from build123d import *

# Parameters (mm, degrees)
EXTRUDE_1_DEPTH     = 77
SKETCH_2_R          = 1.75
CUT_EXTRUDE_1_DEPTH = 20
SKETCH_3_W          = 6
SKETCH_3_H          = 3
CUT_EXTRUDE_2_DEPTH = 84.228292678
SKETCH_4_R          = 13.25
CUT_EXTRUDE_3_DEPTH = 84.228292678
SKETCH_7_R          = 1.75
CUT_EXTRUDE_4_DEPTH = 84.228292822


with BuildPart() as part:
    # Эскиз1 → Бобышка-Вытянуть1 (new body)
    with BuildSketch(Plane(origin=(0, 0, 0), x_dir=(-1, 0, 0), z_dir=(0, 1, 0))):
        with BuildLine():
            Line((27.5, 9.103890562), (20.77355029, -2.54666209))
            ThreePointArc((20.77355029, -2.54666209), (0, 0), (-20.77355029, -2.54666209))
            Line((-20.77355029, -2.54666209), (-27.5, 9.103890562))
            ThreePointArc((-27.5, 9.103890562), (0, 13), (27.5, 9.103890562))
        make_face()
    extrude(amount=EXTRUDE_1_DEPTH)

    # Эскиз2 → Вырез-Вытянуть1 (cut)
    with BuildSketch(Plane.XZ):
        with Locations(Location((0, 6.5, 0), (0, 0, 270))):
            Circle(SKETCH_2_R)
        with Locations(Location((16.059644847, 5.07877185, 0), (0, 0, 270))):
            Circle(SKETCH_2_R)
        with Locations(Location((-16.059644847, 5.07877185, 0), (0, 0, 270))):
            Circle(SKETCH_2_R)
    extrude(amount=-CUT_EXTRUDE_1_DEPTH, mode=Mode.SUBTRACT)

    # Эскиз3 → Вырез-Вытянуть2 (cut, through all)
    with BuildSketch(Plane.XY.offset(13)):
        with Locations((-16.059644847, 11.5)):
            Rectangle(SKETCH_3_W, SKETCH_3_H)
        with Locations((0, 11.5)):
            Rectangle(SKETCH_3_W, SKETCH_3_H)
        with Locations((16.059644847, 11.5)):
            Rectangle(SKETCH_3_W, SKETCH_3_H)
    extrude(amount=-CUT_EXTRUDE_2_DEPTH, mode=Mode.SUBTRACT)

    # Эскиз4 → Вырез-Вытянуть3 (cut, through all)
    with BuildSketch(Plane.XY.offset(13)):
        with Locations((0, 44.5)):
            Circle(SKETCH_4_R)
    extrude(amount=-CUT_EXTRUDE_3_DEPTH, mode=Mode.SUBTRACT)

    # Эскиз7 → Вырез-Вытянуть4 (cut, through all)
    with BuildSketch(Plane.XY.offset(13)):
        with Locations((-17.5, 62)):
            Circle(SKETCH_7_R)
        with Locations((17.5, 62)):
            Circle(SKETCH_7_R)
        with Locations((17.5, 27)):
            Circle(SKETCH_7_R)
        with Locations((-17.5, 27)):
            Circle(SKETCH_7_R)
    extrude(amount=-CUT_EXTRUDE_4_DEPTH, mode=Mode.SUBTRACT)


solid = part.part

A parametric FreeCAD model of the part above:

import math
import FreeCAD as App
import Part
import Sketcher

V = App.Vector
Q = App.Units.Quantity

doc = App.newDocument("Part")
body = doc.addObject("PartDesign::Body", "Body")

# Sketch on XZ plane
sketch1 = doc.addObject("Sketcher::SketchObject", "Sketch")
body.addObject(sketch1)
sketch1.AttachmentSupport = (doc.XZ_Plane, [""])
sketch1.MapMode = "FlatFace"
sketch1.addGeometry([
    Part.LineSegment(V(-21, -3, 0), V(-28, 9, 0)),
    Part.ArcOfCircle(Part.Circle(V(0, -86, 0), V(0, 0, 1), 99), math.radians(74), math.radians(106)),
    Part.LineSegment(V(28, 9, 0), V(21, -3, 0)),
    Part.ArcOfCircle(Part.Circle(V(0, -86, 0), V(0, 0, 1), 86), math.radians(76), math.radians(104)),
], False)
sketch1.addConstraint([
    Sketcher.Constraint("Coincident", 0, 2, 1, 2),
    Sketcher.Constraint("Coincident", 1, 1, 2, 1),
    Sketcher.Constraint("Coincident", 2, 2, 3, 1),
    Sketcher.Constraint("Coincident", 3, 2, 0, 1),
    Sketcher.Constraint("Coincident", 3, 3, 1, 3),
    Sketcher.Constraint("Symmetric", 0, 2, 1, 1, -2),
    Sketcher.Constraint("Horizontal", 2, 2, 3, 2),
    Sketcher.Constraint("Radius", 1, 99.0),
    Sketcher.Constraint("Radius", 3, 86.0),
    Sketcher.Constraint("Angle", 0, Q("120 deg")),
    Sketcher.Constraint("DistanceY", 1, 3, -1, 1, 86.0),
    Sketcher.Constraint("DistanceX", 0, 2, 1, 1, 55.0),
])
pad1 = doc.addObject("PartDesign::Pad", "Pad")
body.addObject(pad1)
pad1.Profile = sketch1
pad1.Length = 77
pad1.Reversed = True

# Sketch on XZ plane
sketch2 = doc.addObject("Sketcher::SketchObject", "Sketch001")
body.addObject(sketch2)
sketch2.AttachmentSupport = (doc.XZ_Plane, [""])
sketch2.MapMode = "FlatFace"
sketch2.addGeometry([
    Part.Circle(V(0, 6.5, 0), V(0, 0, 1), 1.8),
    Part.Circle(V(16.1, 5.1, 0), V(0, 0, 1), 1.8),
    Part.Circle(V(-16.1, 5.1, 0), V(0, 0, 1), 1.8),
], False)
sketch2.addConstraint([
    Sketcher.Constraint("Equal", 0, 1),
    Sketcher.Constraint("Equal", 1, 2),
    Sketcher.Constraint("Symmetric", 1, 3, 2, 3, -2),
    Sketcher.Constraint("PointOnObject", 0, 3, -2),
    Sketcher.Constraint("Diameter", 0, 3.5),
    Sketcher.Constraint("DistanceY", -1, 1, 0, 3, 6.5),
    Sketcher.Constraint("DistanceY", -1, 1, 1, 3, 5.078772),
    Sketcher.Constraint("DistanceX", 2, 3, 1, 3, 32.11929),
])
pocket1 = doc.addObject("PartDesign::Pocket", "Pocket")
body.addObject(pocket1)
pocket1.Profile = sketch2
pocket1.Length = 20

# Sketch on XY plane
sketch3 = doc.addObject("Sketcher::SketchObject", "Sketch002")
body.addObject(sketch3)
sketch3.AttachmentSupport = (doc.XY_Plane, [""])
sketch3.MapMode = "FlatFace"
sketch3.AttachmentOffset = App.Placement(V(0, 0, 13), App.Rotation())
sketch3.addGeometry([
    Part.LineSegment(V(-19.1, 13, 0), V(-19.1, 10, 0)),  # 0
    Part.LineSegment(V(-19.1, 10, 0), V(-13.1, 10, 0)),  # 1
    Part.LineSegment(V(-13.1, 10, 0), V(-13.1, 13, 0)),  # 2
    Part.LineSegment(V(-13.1, 13, 0), V(-19.1, 13, 0)),  # 3
    Part.LineSegment(V(-3, 13, 0), V(-3, 10, 0)),  # 4
    Part.LineSegment(V(-3, 10, 0), V(3, 10, 0)),  # 5
    Part.LineSegment(V(3, 10, 0), V(3, 13, 0)),  # 6
    Part.LineSegment(V(3, 13, 0), V(-3, 13, 0)),  # 7
    Part.LineSegment(V(13.1, 13, 0), V(13.1, 10, 0)),  # 8
    Part.LineSegment(V(13.1, 10, 0), V(19.1, 10, 0)),  # 9
    Part.LineSegment(V(19.1, 10, 0), V(19.1, 13, 0)),  # 10
    Part.LineSegment(V(19.1, 13, 0), V(13.1, 13, 0)),  # 11
], False)
sketch3.addConstraint([
    Sketcher.Constraint("Coincident", 0, 2, 1, 1),
    Sketcher.Constraint("Coincident", 1, 2, 2, 1),
    Sketcher.Constraint("Coincident", 2, 2, 3, 1),
    Sketcher.Constraint("Coincident", 3, 2, 0, 1),
    Sketcher.Constraint("Coincident", 4, 2, 5, 1),
    Sketcher.Constraint("Coincident", 5, 2, 6, 1),
    Sketcher.Constraint("Coincident", 6, 2, 7, 1),
    Sketcher.Constraint("Coincident", 7, 2, 4, 1),
    Sketcher.Constraint("Coincident", 8, 2, 9, 1),
    Sketcher.Constraint("Coincident", 9, 2, 10, 1),
    Sketcher.Constraint("Coincident", 10, 2, 11, 1),
    Sketcher.Constraint("Coincident", 11, 2, 8, 1),
    Sketcher.Constraint("Vertical", 0),
    Sketcher.Constraint("Horizontal", 1),
    Sketcher.Constraint("Vertical", 2),
    Sketcher.Constraint("Horizontal", 3),
    Sketcher.Constraint("Vertical", 4),
    Sketcher.Constraint("Horizontal", 5),
    Sketcher.Constraint("Vertical", 6),
    Sketcher.Constraint("Horizontal", 7),
    Sketcher.Constraint("Vertical", 8),
    Sketcher.Constraint("Horizontal", 9),
    Sketcher.Constraint("Vertical", 10),
    Sketcher.Constraint("Horizontal", 11),
    Sketcher.Constraint("Symmetric", 1, 2, 8, 2, -2),
    Sketcher.Constraint("Symmetric", 3, 2, 10, 2, -2),
    Sketcher.Constraint("Horizontal", 1, 2, 4, 2),
    Sketcher.Constraint("Horizontal", 3, 2, 6, 2),
    Sketcher.Constraint("Equal", 3, 5),
    Sketcher.Constraint("DistanceX", 1, 1, 1, 2, 6.0),
    Sketcher.Constraint("DistanceY", 0, 2, 0, 1, 3.0),
    Sketcher.Constraint("DistanceY", -1, 1, 0, 2, 10.0),
    Sketcher.Constraint("DistanceX", 4, 2, -1, 1, 3.0),
    Sketcher.Constraint("DistanceX", 1, 2, 8, 2, 26.11929),
])
pocket2 = doc.addObject("PartDesign::Pocket", "Pocket001")
body.addObject(pocket2)
pocket2.Profile = sketch3
pocket2.Type = "ThroughAll"

# Sketch on XY plane
sketch4 = doc.addObject("Sketcher::SketchObject", "Sketch003")
body.addObject(sketch4)
sketch4.AttachmentSupport = (doc.XY_Plane, [""])
sketch4.MapMode = "FlatFace"
sketch4.AttachmentOffset = App.Placement(V(0, 0, 13), App.Rotation())
sketch4.addGeometry(Part.Circle(V(0, 44, 0), V(0, 0, 1), 13), False)
sketch4.addConstraint([
    Sketcher.Constraint("PointOnObject", 0, 3, -2),
    Sketcher.Constraint("Diameter", 0, 26.5),
    Sketcher.Constraint("DistanceY", -1, 1, 0, 3, 44.5),
])
pocket3 = doc.addObject("PartDesign::Pocket", "Pocket002")
body.addObject(pocket3)
pocket3.Profile = sketch4
pocket3.Type = "ThroughAll"

# Sketch on XY plane
sketch5 = doc.addObject("Sketcher::SketchObject", "Sketch004")
body.addObject(sketch5)
sketch5.AttachmentSupport = (doc.XY_Plane, [""])
sketch5.MapMode = "FlatFace"
sketch5.AttachmentOffset = App.Placement(V(0, 0, 13), App.Rotation())
sketch5.addGeometry([
    Part.Circle(V(-17.5, 62, 0), V(0, 0, 1), 1.8),
    Part.Circle(V(17.5, 62, 0), V(0, 0, 1), 1.8),
    Part.Circle(V(17.5, 27, 0), V(0, 0, 1), 1.8),
    Part.Circle(V(-17.5, 27, 0), V(0, 0, 1), 1.8),
], False)
sketch5.addConstraint([
    Sketcher.Constraint("Equal", 0, 1),
    Sketcher.Constraint("Equal", 1, 2),
    Sketcher.Constraint("Equal", 2, 3),
    Sketcher.Constraint("Symmetric", 0, 3, 1, 3, -2),
    Sketcher.Constraint("Symmetric", 2, 3, 3, 3, -2),
    Sketcher.Constraint("Vertical", 1, 3, 2, 3),
    Sketcher.Constraint("Diameter", 0, 3.5),
    Sketcher.Constraint("DistanceY", -1, 1, 0, 3, 62.0),
    Sketcher.Constraint("DistanceY", -1, 1, 2, 3, 27.0),
    Sketcher.Constraint("DistanceX", 0, 3, 1, 3, 35.0),
])
pocket4 = doc.addObject("PartDesign::Pocket", "Pocket003")
body.addObject(pocket4)
pocket4.Profile = sketch5
pocket4.Type = "ThroughAll"

doc.recompute()
